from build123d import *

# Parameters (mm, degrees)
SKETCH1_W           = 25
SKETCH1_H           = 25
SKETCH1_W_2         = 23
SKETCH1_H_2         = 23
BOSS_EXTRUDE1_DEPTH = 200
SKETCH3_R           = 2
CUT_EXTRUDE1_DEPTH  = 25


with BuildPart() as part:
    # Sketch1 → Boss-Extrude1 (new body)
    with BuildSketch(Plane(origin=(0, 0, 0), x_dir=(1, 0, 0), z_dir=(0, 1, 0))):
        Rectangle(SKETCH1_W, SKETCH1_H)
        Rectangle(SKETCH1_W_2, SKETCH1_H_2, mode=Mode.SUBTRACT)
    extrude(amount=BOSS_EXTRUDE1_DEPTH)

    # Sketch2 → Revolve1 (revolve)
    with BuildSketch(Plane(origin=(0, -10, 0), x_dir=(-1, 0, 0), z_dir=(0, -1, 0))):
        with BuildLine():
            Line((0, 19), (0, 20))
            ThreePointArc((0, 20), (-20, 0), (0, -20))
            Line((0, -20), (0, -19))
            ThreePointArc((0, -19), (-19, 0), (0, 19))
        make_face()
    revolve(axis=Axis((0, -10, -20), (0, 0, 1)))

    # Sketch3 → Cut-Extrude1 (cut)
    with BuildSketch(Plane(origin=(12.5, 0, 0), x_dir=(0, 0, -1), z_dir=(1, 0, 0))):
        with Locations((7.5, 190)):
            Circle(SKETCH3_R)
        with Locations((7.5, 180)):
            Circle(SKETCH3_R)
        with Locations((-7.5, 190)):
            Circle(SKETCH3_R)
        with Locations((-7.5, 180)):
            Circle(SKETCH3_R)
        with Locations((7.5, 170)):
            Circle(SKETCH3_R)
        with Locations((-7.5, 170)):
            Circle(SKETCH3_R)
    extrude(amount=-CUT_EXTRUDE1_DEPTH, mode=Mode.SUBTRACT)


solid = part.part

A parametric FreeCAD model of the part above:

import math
import FreeCAD as App
import Part
import Sketcher

V = App.Vector

doc = App.newDocument("Part")
body = doc.addObject("PartDesign::Body", "Body")

# Sketch on XZ plane
sketch1 = doc.addObject("Sketcher::SketchObject", "Sketch")
body.addObject(sketch1)
sketch1.AttachmentSupport = (doc.XZ_Plane, [""])
sketch1.MapMode = "FlatFace"
sketch1.addGeometry([
    Part.LineSegment(V(-12, -12, 0), V(-12, 12, 0)),  # 0
    Part.LineSegment(V(-12, 12, 0), V(12, 12, 0)),  # 1
    Part.LineSegment(V(12, 12, 0), V(12, -12, 0)),  # 2
    Part.LineSegment(V(12, -12, 0), V(-12, -12, 0)),  # 3
    Part.LineSegment(V(12, 12, 0), V(-12, 12, 0)),  # 4
    Part.LineSegment(V(-12, 12, 0), V(-12, -12, 0)),  # 5
    Part.LineSegment(V(-12, -12, 0), V(12, -12, 0)),  # 6
    Part.LineSegment(V(12, -12, 0), V(12, 12, 0)),  # 7
], False)
sketch1.addConstraint([
    Sketcher.Constraint("Coincident", 0, 2, 1, 1),
    Sketcher.Constraint("Coincident", 1, 2, 2, 1),
    Sketcher.Constraint("Coincident", 2, 2, 3, 1),
    Sketcher.Constraint("Coincident", 3, 2, 0, 1),
    Sketcher.Constraint("Coincident", 4, 2, 5, 1),
    Sketcher.Constraint("Coincident", 5, 2, 6, 1),
    Sketcher.Constraint("Coincident", 6, 2, 7, 1),
    Sketcher.Constraint("Coincident", 7, 2, 4, 1),
    Sketcher.Constraint("Vertical", 0),
    Sketcher.Constraint("Horizontal", 1),
    Sketcher.Constraint("Vertical", 2),
    Sketcher.Constraint("Horizontal", 3),
    Sketcher.Constraint("Horizontal", 4),
    Sketcher.Constraint("Vertical", 5),
    Sketcher.Constraint("Horizontal", 6),
    Sketcher.Constraint("Vertical", 7),
    Sketcher.Constraint("Symmetric", 0, 2, 2, 2, -1, 1),
    Sketcher.Constraint("Symmetric", 4, 2, 6, 2, -1, 1),
    Sketcher.Constraint("Equal", 3, 0),
    Sketcher.Constraint("Equal", 6, 5),
    Sketcher.Constraint("DistanceX", 1, 1, 1, 2, 25.0),
    Sketcher.Constraint("DistanceX", 4, 2, 4, 1, 23.0),
])
pad1 = doc.addObject("PartDesign::Pad", "Pad")
body.addObject(pad1)
pad1.Profile = sketch1
pad1.Length = 200
pad1.Reversed = True

# Sketch on XZ plane
sketch2 = doc.addObject("Sketcher::SketchObject", "Sketch001")
body.addObject(sketch2)
sketch2.AttachmentSupport = (doc.XZ_Plane, [""])
sketch2.MapMode = "FlatFace"
sketch2.AttachmentOffset = App.Placement(V(0, 0, 10), App.Rotation())
sketch2.addGeometry([
    Part.LineSegment(V(0, -19, 0), V(0, -20, 0)),
    Part.ArcOfCircle(Part.Circle(V(0, 0, 0), V(0, 0, 1), 20), math.radians(-90), math.radians(90)),
    Part.LineSegment(V(0, 20, 0), V(0, 19, 0)),
    Part.ArcOfCircle(Part.Circle(V(0, 0, 0), V(0, 0, 1), 19), math.radians(-90), math.radians(90)),
], False)
sketch2.addConstraint([
    Sketcher.Constraint("Coincident", 0, 2, 1, 1),
    Sketcher.Constraint("Coincident", 1, 2, 2, 1),
    Sketcher.Constraint("Coincident", 2, 2, 3, 2),
    Sketcher.Constraint("Coincident", 3, 1, 0, 1),
    Sketcher.Constraint("Vertical", 0),
    Sketcher.Constraint("Vertical", 2),
    Sketcher.Constraint("Coincident", 1, 3, -1, 1),
    Sketcher.Constraint("Coincident", 3, 3, -1, 1),
    Sketcher.Constraint("PointOnObject", 0, 2, -2),
    Sketcher.Constraint("PointOnObject", 1, 2, -2),
    Sketcher.Constraint("Radius", 1, 20.0),
    Sketcher.Constraint("Radius", 3, 19.0),
])
revolution = doc.addObject("PartDesign::Revolution", "Revolution")
body.addObject(revolution)
revolution.Profile = sketch2
revolution.ReferenceAxis = (sketch2, ["V_Axis"])
revolution.Angle = 360

# Sketch on YZ plane
sketch3 = doc.addObject("Sketcher::SketchObject", "Sketch002")
body.addObject(sketch3)
sketch3.AttachmentSupport = (doc.YZ_Plane, [""])
sketch3.MapMode = "FlatFace"
sketch3.AttachmentOffset = App.Placement(V(0, 0, 12.5), App.Rotation())
sketch3.addGeometry([
    Part.Circle(V(190, -7.5, 0), V(0, 0, 1), 2),  # 0
    Part.Circle(V(180, -7.5, 0), V(0, 0, 1), 2),  # 1
    Part.Circle(V(190, 7.5, 0), V(0, 0, 1), 2),  # 2
    Part.Circle(V(180, 7.5, 0), V(0, 0, 1), 2),  # 3
    Part.Circle(V(170, -7.5, 0), V(0, 0, 1), 2),  # 4
    Part.Circle(V(170, 7.5, 0), V(0, 0, 1), 2),  # 5
], False)
sketch3.addConstraint([
    Sketcher.Constraint("Equal", 0, 1),
    Sketcher.Constraint("Equal", 1, 2),
    Sketcher.Constraint("Equal", 2, 3),
    Sketcher.Constraint("Equal", 3, 4),
    Sketcher.Constraint("Equal", 4, 5),
    Sketcher.Constraint("Symmetric", 0, 3, 2, 3, -1),
    Sketcher.Constraint("Symmetric", 1, 3, 3, 3, -1),
    Sketcher.Constraint("Symmetric", 4, 3, 5, 3, -1),
    Sketcher.Constraint("Horizontal", 0, 3, 1, 3),
    Sketcher.Constraint("Horizontal", 1, 3, 4, 3),
    Sketcher.Constraint("Diameter", 0, 4.0),
    Sketcher.Constraint("DistanceX", -1, 1, 0, 3, 190.0),
    Sketcher.Constraint("DistanceX", -1, 1, 1, 3, 180.0),
    Sketcher.Constraint("DistanceX", -1, 1, 4, 3, 170.0),
    Sketcher.Constraint("DistanceY", 0, 3, 2, 3, 15.0),
])
pocket1 = doc.addObject("PartDesign::Pocket", "Pocket")
body.addObject(pocket1)
pocket1.Profile = sketch3
pocket1.Length = 25

doc.recompute()
